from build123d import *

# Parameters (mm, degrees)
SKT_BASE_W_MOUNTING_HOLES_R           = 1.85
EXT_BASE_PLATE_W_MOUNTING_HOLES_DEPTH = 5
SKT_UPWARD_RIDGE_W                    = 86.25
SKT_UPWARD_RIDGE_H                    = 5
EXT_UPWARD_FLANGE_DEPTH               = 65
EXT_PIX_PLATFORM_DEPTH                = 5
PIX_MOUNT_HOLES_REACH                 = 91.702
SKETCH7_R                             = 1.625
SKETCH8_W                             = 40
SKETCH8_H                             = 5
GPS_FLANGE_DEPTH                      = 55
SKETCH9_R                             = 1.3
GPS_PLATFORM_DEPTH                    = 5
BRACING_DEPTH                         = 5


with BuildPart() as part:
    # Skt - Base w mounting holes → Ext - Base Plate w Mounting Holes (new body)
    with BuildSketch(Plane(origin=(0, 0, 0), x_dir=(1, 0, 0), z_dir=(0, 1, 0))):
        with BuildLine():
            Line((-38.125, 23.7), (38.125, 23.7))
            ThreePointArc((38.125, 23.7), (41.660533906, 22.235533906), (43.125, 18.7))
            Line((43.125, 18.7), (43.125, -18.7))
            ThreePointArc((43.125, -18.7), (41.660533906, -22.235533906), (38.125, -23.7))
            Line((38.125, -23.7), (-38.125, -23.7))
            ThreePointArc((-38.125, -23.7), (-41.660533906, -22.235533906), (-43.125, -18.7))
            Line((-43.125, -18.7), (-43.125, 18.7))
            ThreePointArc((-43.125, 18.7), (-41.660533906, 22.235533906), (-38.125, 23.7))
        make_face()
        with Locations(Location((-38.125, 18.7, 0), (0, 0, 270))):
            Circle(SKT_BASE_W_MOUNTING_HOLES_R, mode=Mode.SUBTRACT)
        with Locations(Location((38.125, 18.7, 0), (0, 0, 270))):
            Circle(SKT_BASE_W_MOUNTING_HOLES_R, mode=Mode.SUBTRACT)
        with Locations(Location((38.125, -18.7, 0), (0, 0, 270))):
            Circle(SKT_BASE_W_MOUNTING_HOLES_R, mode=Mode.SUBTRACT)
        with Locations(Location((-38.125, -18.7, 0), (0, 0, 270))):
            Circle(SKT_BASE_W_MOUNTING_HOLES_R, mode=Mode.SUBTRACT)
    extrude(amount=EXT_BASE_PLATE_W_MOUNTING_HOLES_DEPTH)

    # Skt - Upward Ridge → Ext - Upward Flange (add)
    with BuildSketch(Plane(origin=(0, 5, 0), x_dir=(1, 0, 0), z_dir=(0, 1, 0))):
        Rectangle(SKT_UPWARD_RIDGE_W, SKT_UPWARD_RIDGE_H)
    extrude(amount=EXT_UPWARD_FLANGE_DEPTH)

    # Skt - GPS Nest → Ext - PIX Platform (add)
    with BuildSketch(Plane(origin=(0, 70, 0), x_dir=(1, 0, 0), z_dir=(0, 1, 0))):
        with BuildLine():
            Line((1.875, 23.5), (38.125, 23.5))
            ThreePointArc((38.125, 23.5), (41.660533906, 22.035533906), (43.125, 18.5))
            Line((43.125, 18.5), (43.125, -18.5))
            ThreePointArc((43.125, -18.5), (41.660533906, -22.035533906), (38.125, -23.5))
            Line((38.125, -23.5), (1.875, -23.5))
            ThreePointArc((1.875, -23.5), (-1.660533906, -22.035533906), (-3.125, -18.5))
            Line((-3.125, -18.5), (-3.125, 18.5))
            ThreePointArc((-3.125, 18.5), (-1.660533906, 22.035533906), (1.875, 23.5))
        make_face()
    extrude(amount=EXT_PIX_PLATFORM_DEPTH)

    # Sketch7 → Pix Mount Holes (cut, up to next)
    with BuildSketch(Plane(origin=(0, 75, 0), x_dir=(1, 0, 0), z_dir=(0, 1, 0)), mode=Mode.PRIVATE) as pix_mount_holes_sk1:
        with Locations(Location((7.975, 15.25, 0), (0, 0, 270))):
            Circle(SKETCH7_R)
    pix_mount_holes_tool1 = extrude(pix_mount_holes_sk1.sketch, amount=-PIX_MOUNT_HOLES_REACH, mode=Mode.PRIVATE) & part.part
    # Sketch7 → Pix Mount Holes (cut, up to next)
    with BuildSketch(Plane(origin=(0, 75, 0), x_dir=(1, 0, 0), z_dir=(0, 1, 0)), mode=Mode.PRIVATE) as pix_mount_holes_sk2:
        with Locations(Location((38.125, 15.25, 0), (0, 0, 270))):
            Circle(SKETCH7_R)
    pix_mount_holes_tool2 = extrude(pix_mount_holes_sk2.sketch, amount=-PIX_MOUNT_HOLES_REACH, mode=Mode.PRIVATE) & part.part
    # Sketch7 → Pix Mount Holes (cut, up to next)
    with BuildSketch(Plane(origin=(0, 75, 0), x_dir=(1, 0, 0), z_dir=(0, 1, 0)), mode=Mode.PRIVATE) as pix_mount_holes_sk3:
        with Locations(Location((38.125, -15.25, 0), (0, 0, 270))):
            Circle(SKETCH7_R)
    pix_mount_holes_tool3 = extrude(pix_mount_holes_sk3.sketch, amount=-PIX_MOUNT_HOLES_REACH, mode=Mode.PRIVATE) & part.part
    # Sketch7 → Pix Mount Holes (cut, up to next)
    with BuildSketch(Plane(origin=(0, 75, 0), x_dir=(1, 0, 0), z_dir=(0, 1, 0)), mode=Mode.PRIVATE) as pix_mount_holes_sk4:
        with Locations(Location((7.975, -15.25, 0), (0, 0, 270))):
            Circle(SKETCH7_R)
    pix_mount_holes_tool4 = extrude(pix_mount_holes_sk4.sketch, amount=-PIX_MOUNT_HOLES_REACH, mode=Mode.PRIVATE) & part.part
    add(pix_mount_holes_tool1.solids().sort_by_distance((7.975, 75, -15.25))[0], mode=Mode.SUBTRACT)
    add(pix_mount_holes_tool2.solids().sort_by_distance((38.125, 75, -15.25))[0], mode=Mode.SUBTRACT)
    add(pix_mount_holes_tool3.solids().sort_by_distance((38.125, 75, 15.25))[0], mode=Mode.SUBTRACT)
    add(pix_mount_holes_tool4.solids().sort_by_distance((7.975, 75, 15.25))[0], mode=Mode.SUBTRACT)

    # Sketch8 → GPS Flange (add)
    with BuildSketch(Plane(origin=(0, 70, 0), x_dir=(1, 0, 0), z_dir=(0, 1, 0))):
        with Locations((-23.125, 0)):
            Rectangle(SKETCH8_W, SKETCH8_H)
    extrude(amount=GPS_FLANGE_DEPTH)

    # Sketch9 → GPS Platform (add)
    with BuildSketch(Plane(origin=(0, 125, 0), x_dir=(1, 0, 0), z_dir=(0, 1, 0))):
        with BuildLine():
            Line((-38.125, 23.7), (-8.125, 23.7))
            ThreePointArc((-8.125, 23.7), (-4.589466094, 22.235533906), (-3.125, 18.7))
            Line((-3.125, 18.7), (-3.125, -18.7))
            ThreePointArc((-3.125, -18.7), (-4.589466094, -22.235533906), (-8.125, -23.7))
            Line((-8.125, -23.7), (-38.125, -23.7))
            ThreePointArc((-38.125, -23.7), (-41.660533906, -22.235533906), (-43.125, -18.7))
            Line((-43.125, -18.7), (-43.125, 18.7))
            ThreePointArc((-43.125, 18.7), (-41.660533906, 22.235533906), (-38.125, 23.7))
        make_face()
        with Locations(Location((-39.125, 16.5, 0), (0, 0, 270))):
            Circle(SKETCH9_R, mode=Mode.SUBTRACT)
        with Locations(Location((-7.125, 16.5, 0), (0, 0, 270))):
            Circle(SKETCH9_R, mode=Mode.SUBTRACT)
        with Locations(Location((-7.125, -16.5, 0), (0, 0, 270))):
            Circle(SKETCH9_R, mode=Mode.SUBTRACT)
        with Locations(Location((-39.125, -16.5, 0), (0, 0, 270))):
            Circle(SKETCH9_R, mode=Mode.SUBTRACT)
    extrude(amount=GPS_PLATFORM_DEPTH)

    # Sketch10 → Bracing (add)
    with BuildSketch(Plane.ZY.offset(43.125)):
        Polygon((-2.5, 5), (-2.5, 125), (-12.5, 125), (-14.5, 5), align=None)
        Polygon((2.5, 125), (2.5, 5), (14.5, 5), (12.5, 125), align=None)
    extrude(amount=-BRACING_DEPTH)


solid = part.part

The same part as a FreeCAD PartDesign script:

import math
import FreeCAD as App
import Part
import Sketcher
Q = App.Units.Quantity

doc = App.newDocument("Part")
body = doc.addObject("PartDesign::Body", "Body")

sketch1 = body.newObject("Sketcher::SketchObject", "Sketch")
sketch1.AttachmentSupport = (doc.getObject("XZ_Plane"), [""])
sketch1.MapMode = "FlatFace"
sketch1.addGeometry(Part.LineSegment(App.Vector(38.1, -23.7, 0), App.Vector(-38.1, -23.7, 0)), False)
sketch1.addGeometry(Part.ArcOfCircle(Part.Circle(App.Vector(-38.1, -18.7, 0), App.Vector(0, 0, 1), 5), math.radians(180), math.radians(270)), False)
sketch1.addGeometry(Part.LineSegment(App.Vector(-43.1, -18.7, 0), App.Vector(-43.1, 18.7, 0)), False)
sketch1.addGeometry(Part.ArcOfCircle(Part.Circle(App.Vector(-38.1, 18.7, 0), App.Vector(0, 0, 1), 5), math.radians(90), math.radians(180)), False)
sketch1.addGeometry(Part.LineSegment(App.Vector(-38.1, 23.7, 0), App.Vector(38.1, 23.7, 0)), False)
sketch1.addGeometry(Part.ArcOfCircle(Part.Circle(App.Vector(38.1, 18.7, 0), App.Vector(0, 0, 1), 5), math.radians(0), math.radians(90)), False)
sketch1.addGeometry(Part.LineSegment(App.Vector(43.1, 18.7, 0), App.Vector(43.1, -18.7, 0)), False)
sketch1.addGeometry(Part.ArcOfCircle(Part.Circle(App.Vector(38.1, -18.7, 0), App.Vector(0, 0, 1), 5), math.radians(-90), math.radians(0)), False)
sketch1.addGeometry(Part.Circle(App.Vector(38.1, 18.7, 0), App.Vector(0, 0, 1), 1.9), False)
sketch1.addGeometry(Part.Circle(App.Vector(-38.1, 18.7, 0), App.Vector(0, 0, 1), 1.9), False)
sketch1.addGeometry(Part.Circle(App.Vector(38.1, -18.7, 0), App.Vector(0, 0, 1), 1.9), False)
sketch1.addGeometry(Part.Circle(App.Vector(-38.1, -18.7, 0), App.Vector(0, 0, 1), 1.9), False)
sketch1.addConstraint(Sketcher.Constraint("Tangent", 0, 2, 1, 2))
sketch1.addConstraint(Sketcher.Constraint("Tangent", 1, 1, 2, 1))
sketch1.addConstraint(Sketcher.Constraint("Tangent", 2, 2, 3, 2))
sketch1.addConstraint(Sketcher.Constraint("Tangent", 3, 1, 4, 1))
sketch1.addConstraint(Sketcher.Constraint("Tangent", 4, 2, 5, 2))
sketch1.addConstraint(Sketcher.Constraint("Tangent", 5, 1, 6, 1))
sketch1.addConstraint(Sketcher.Constraint("Tangent", 6, 2, 7, 2))
sketch1.addConstraint(Sketcher.Constraint("Tangent", 7, 1, 0, 1))
sketch1.addConstraint(Sketcher.Constraint("Horizontal", 0))
sketch1.addConstraint(Sketcher.Constraint("Vertical", 2))
sketch1.addConstraint(Sketcher.Constraint("Horizontal", 4))
sketch1.addConstraint(Sketcher.Constraint("Vertical", 6))
sketch1.addConstraint(Sketcher.Constraint("Coincident", 8, 3, 5, 3))
sketch1.addConstraint(Sketcher.Constraint("Coincident", 9, 3, 3, 3))
sketch1.addConstraint(Sketcher.Constraint("Coincident", 10, 3, 7, 3))
sketch1.addConstraint(Sketcher.Constraint("Coincident", 11, 3, 1, 3))
sketch1.addConstraint(Sketcher.Constraint("Equal", 1, 3))
sketch1.addConstraint(Sketcher.Constraint("Equal", 3, 5))
sketch1.addConstraint(Sketcher.Constraint("Equal", 5, 7))
sketch1.addConstraint(Sketcher.Constraint("Equal", 8, 9))
sketch1.addConstraint(Sketcher.Constraint("Equal", 9, 10))
sketch1.addConstraint(Sketcher.Constraint("Equal", 10, 11))
sketch1.addConstraint(Sketcher.Constraint("Symmetric", 1, 3, 5, 3, -1, 1))
sketch1.addConstraint(Sketcher.Constraint("Radius", 1, Q("5 mm")))
sketch1.addConstraint(Sketcher.Constraint("Diameter", 8, Q("3.7 mm")))
sketch1.addConstraint(Sketcher.Constraint("DistanceY", 2, 1, 2, 2, Q("37.4 mm")))
sketch1.addConstraint(Sketcher.Constraint("DistanceX", 0, 2, 0, 1, Q("76.25 mm")))
pad1 = body.newObject("PartDesign::Pad", "Pad")
pad1.Profile = sketch1
pad1.Length = 5
pad1.Reversed = True

sketch2 = body.newObject("Sketcher::SketchObject", "Sketch001")
sketch2.AttachmentSupport = (doc.getObject("XZ_Plane"), [""])
sketch2.MapMode = "FlatFace"
sketch2.AttachmentOffset = App.Placement(App.Vector(0, 0, -5), App.Rotation())
sketch2.addGeometry(Part.LineSegment(App.Vector(-43, -2, 0), App.Vector(-43, 2, 0)), False)
sketch2.addGeometry(Part.LineSegment(App.Vector(-43, 2, 0), App.Vector(43, 2, 0)), False)
sketch2.addGeometry(Part.LineSegment(App.Vector(43, 2, 0), App.Vector(43, -2, 0)), False)
sketch2.addGeometry(Part.LineSegment(App.Vector(43, -2, 0), App.Vector(-43, -2, 0)), False)
sketch2.addConstraint(Sketcher.Constraint("Coincident", 0, 2, 1, 1))
sketch2.addConstraint(Sketcher.Constraint("Coincident", 1, 2, 2, 1))
sketch2.addConstraint(Sketcher.Constraint("Coincident", 2, 2, 3, 1))
sketch2.addConstraint(Sketcher.Constraint("Coincident", 3, 2, 0, 1))
sketch2.addConstraint(Sketcher.Constraint("Vertical", 0))
sketch2.addConstraint(Sketcher.Constraint("Horizontal", 1))
sketch2.addConstraint(Sketcher.Constraint("Vertical", 2))
sketch2.addConstraint(Sketcher.Constraint("Horizontal", 3))
sketch2.addConstraint(Sketcher.Constraint("Symmetric", 0, 2, 2, 2, -1, 1))
sketch2.addConstraint(Sketcher.Constraint("DistanceY", 0, 1, 0, 2, Q("5 mm")))
sketch2.addConstraint(Sketcher.Constraint("DistanceX", 1, 1, 1, 2, Q("86.25 mm")))
pad2 = body.newObject("PartDesign::Pad", "Pad001")
pad2.Profile = sketch2
pad2.Length = 65
pad2.Reversed = True

sketch3 = body.newObject("Sketcher::SketchObject", "Sketch002")
sketch3.AttachmentSupport = (doc.getObject("XZ_Plane"), [""])
sketch3.MapMode = "FlatFace"
sketch3.AttachmentOffset = App.Placement(App.Vector(0, 0, -70), App.Rotation())
sketch3.addGeometry(Part.LineSegment(App.Vector(38, -24, 0), App.Vector(2, -24, 0)), False)
sketch3.addGeometry(Part.ArcOfCircle(Part.Circle(App.Vector(2, -18, 0), App.Vector(0, 0, 1), 5), math.radians(180), math.radians(270)), False)
sketch3.addGeometry(Part.LineSegment(App.Vector(-3, -18, 0), App.Vector(-3, 18, 0)), False)
sketch3.addGeometry(Part.ArcOfCircle(Part.Circle(App.Vector(2, 18, 0), App.Vector(0, 0, 1), 5), math.radians(90), math.radians(180)), False)
sketch3.addGeometry(Part.LineSegment(App.Vector(2, 24, 0), App.Vector(38, 24, 0)), False)
sketch3.addGeometry(Part.ArcOfCircle(Part.Circle(App.Vector(38, 18, 0), App.Vector(0, 0, 1), 5), math.radians(0), math.radians(90)), False)
sketch3.addGeometry(Part.LineSegment(App.Vector(43, 18, 0), App.Vector(43, -18, 0)), False)
sketch3.addGeometry(Part.ArcOfCircle(Part.Circle(App.Vector(38, -18, 0), App.Vector(0, 0, 1), 5), math.radians(-90), math.radians(0)), False)
sketch3.addConstraint(Sketcher.Constraint("Tangent", 0, 2, 1, 2))
sketch3.addConstraint(Sketcher.Constraint("Tangent", 1, 1, 2, 1))
sketch3.addConstraint(Sketcher.Constraint("Tangent", 2, 2, 3, 2))
sketch3.addConstraint(Sketcher.Constraint("Tangent", 3, 1, 4, 1))
sketch3.addConstraint(Sketcher.Constraint("Tangent", 4, 2, 5, 2))
sketch3.addConstraint(Sketcher.Constraint("Tangent", 5, 1, 6, 1))
sketch3.addConstraint(Sketcher.Constraint("Tangent", 6, 2, 7, 2))
sketch3.addConstraint(Sketcher.Constraint("Tangent", 7, 1, 0, 1))
sketch3.addConstraint(Sketcher.Constraint("Horizontal", 0))
sketch3.addConstraint(Sketcher.Constraint("Vertical", 2))
sketch3.addConstraint(Sketcher.Constraint("Horizontal", 4))
sketch3.addConstraint(Sketcher.Constraint("Vertical", 6))
sketch3.addConstraint(Sketcher.Constraint("Equal", 1, 3))
sketch3.addConstraint(Sketcher.Constraint("Equal", 3, 5))
sketch3.addConstraint(Sketcher.Constraint("Equal", 5, 7))
sketch3.addConstraint(Sketcher.Constraint("Radius", 1, Q("5 mm")))
sketch3.addConstraint(Sketcher.Constraint("DistanceY", 2, 1, 2, 2, Q("37 mm")))
sketch3.addConstraint(Sketcher.Constraint("DistanceX", 0, 2, 0, 1, Q("36.25 mm")))
sketch3.addConstraint(Sketcher.Constraint("DistanceY", 1, 3, -1, 1, Q("18.5 mm")))
sketch3.addConstraint(Sketcher.Constraint("DistanceX", -1, 1, 1, 3, Q("1.875 mm")))
pad3 = body.newObject("PartDesign::Pad", "Pad002")
pad3.Profile = sketch3
pad3.Length = 5
pad3.Reversed = True

sketch4 = body.newObject("Sketcher::SketchObject", "Sketch003")
sketch4.AttachmentSupport = (doc.getObject("XZ_Plane"), [""])
sketch4.MapMode = "FlatFace"
sketch4.AttachmentOffset = App.Placement(App.Vector(0, 0, -75), App.Rotation())
sketch4.addGeometry(Part.Circle(App.Vector(8, -15.2, 0), App.Vector(0, 0, 1), 1.6), False)
sketch4.addConstraint(Sketcher.Constraint("Diameter", 0, Q("3.25 mm")))
sketch4.addConstraint(Sketcher.Constraint("DistanceY", 0, 3, -1, 1, Q("15.25 mm")))
sketch4.addConstraint(Sketcher.Constraint("DistanceX", -1, 1, 0, 3, Q("7.975 mm")))
pocket1 = body.newObject("PartDesign::Pocket", "Pocket")
pocket1.Profile = sketch4
pocket1.Type = "UpToFirst"
pocket1.Reversed = True

sketch5 = body.newObject("Sketcher::SketchObject", "Sketch004")
sketch5.AttachmentSupport = (doc.getObject("XZ_Plane"), [""])
sketch5.MapMode = "FlatFace"
sketch5.AttachmentOffset = App.Placement(App.Vector(0, 0, -75), App.Rotation())
sketch5.addGeometry(Part.Circle(App.Vector(38.1, -15.2, 0), App.Vector(0, 0, 1), 1.6), False)
sketch5.addConstraint(Sketcher.Constraint("Diameter", 0, Q("3.25 mm")))
sketch5.addConstraint(Sketcher.Constraint("DistanceY", 0, 3, -1, 1, Q("15.25 mm")))
sketch5.addConstraint(Sketcher.Constraint("DistanceX", -1, 1, 0, 3, Q("38.125 mm")))
pocket2 = body.newObject("PartDesign::Pocket", "Pocket001")
pocket2.Profile = sketch5
pocket2.Type = "UpToFirst"
pocket2.Reversed = True

sketch6 = body.newObject("Sketcher::SketchObject", "Sketch005")
sketch6.AttachmentSupport = (doc.getObject("XZ_Plane"), [""])
sketch6.MapMode = "FlatFace"
sketch6.AttachmentOffset = App.Placement(App.Vector(0, 0, -75), App.Rotation())
sketch6.addGeometry(Part.Circle(App.Vector(38.1, 15.2, 0), App.Vector(0, 0, 1), 1.6), False)
sketch6.addConstraint(Sketcher.Constraint("Diameter", 0, Q("3.25 mm")))
sketch6.addConstraint(Sketcher.Constraint("DistanceY", -1, 1, 0, 3, Q("15.25 mm")))
sketch6.addConstraint(Sketcher.Constraint("DistanceX", -1, 1, 0, 3, Q("38.125 mm")))
pocket3 = body.newObject("PartDesign::Pocket", "Pocket002")
pocket3.Profile = sketch6
pocket3.Type = "UpToFirst"
pocket3.Reversed = True

sketch7 = body.newObject("Sketcher::SketchObject", "Sketch006")
sketch7.AttachmentSupport = (doc.getObject("XZ_Plane"), [""])
sketch7.MapMode = "FlatFace"
sketch7.AttachmentOffset = App.Placement(App.Vector(0, 0, -75), App.Rotation())
sketch7.addGeometry(Part.Circle(App.Vector(8, 15.2, 0), App.Vector(0, 0, 1), 1.6), False)
sketch7.addConstraint(Sketcher.Constraint("Diameter", 0, Q("3.25 mm")))
sketch7.addConstraint(Sketcher.Constraint("DistanceY", -1, 1, 0, 3, Q("15.25 mm")))
sketch7.addConstraint(Sketcher.Constraint("DistanceX", -1, 1, 0, 3, Q("7.975 mm")))
pocket4 = body.newObject("PartDesign::Pocket", "Pocket003")
pocket4.Profile = sketch7
pocket4.Type = "UpToFirst"
pocket4.Reversed = True

sketch8 = body.newObject("Sketcher::SketchObject", "Sketch007")
sketch8.AttachmentSupport = (doc.getObject("XZ_Plane"), [""])
sketch8.MapMode = "FlatFace"
sketch8.AttachmentOffset = App.Placement(App.Vector(0, 0, -70), App.Rotation())
sketch8.addGeometry(Part.LineSegment(App.Vector(-43, -2, 0), App.Vector(-43, 2, 0)), False)
sketch8.addGeometry(Part.LineSegment(App.Vector(-43, 2, 0), App.Vector(-3, 2, 0)), False)
sketch8.addGeometry(Part.LineSegment(App.Vector(-3, 2, 0), App.Vector(-3, -2, 0)), False)
sketch8.addGeometry(Part.LineSegment(App.Vector(-3, -2, 0), App.Vector(-43, -2, 0)), False)
sketch8.addConstraint(Sketcher.Constraint("Coincident", 0, 2, 1, 1))
sketch8.addConstraint(Sketcher.Constraint("Coincident", 1, 2, 2, 1))
sketch8.addConstraint(Sketcher.Constraint("Coincident", 2, 2, 3, 1))
sketch8.addConstraint(Sketcher.Constraint("Coincident", 3, 2, 0, 1))
sketch8.addConstraint(Sketcher.Constraint("Vertical", 0))
sketch8.addConstraint(Sketcher.Constraint("Horizontal", 1))
sketch8.addConstraint(Sketcher.Constraint("Vertical", 2))
sketch8.addConstraint(Sketcher.Constraint("Horizontal", 3))
sketch8.addConstraint(Sketcher.Constraint("DistanceX", 1, 1, 1, 2, Q("40 mm")))
sketch8.addConstraint(Sketcher.Constraint("DistanceY", 0, 1, 0, 2, Q("5 mm")))
sketch8.addConstraint(Sketcher.Constraint("DistanceY", -1, 1, 0, 2, Q("2.5 mm")))
sketch8.addConstraint(Sketcher.Constraint("DistanceX", 0, 2, -1, 1, Q("43.125 mm")))
pad4 = body.newObject("PartDesign::Pad", "Pad003")
pad4.Profile = sketch8
pad4.Length = 55
pad4.Reversed = True

sketch9 = body.newObject("Sketcher::SketchObject", "Sketch008")
sketch9.AttachmentSupport = (doc.getObject("XZ_Plane"), [""])
sketch9.MapMode = "FlatFace"
sketch9.AttachmentOffset = App.Placement(App.Vector(0, 0, -125), App.Rotation())
sketch9.addGeometry(Part.LineSegment(App.Vector(-8.1, -23.7, 0), App.Vector(-38.1, -23.7, 0)), False)
sketch9.addGeometry(Part.ArcOfCircle(Part.Circle(App.Vector(-38.1, -18.7, 0), App.Vector(0, 0, 1), 5), math.radians(180), math.radians(270)), False)
sketch9.addGeometry(Part.LineSegment(App.Vector(-43.1, -18.7, 0), App.Vector(-43.1, 18.7, 0)), False)
sketch9.addGeometry(Part.ArcOfCircle(Part.Circle(App.Vector(-38.1, 18.7, 0), App.Vector(0, 0, 1), 5), math.radians(90), math.radians(180)), False)
sketch9.addGeometry(Part.LineSegment(App.Vector(-38.1, 23.7, 0), App.Vector(-8.1, 23.7, 0)), False)
sketch9.addGeometry(Part.ArcOfCircle(Part.Circle(App.Vector(-8.1, 18.7, 0), App.Vector(0, 0, 1), 5), math.radians(0), math.radians(90)), False)
sketch9.addGeometry(Part.LineSegment(App.Vector(-3.1, 18.7, 0), App.Vector(-3.1, -18.7, 0)), False)
sketch9.addGeometry(Part.ArcOfCircle(Part.Circle(App.Vector(-8.1, -18.7, 0), App.Vector(0, 0, 1), 5), math.radians(-90), math.radians(0)), False)
sketch9.addGeometry(Part.Circle(App.Vector(-7.1, 16.5, 0), App.Vector(0, 0, 1), 1.3), False)
sketch9.addGeometry(Part.Circle(App.Vector(-39.1, 16.5, 0), App.Vector(0, 0, 1), 1.3), False)
sketch9.addGeometry(Part.Circle(App.Vector(-7.1, -16.5, 0), App.Vector(0, 0, 1), 1.3), False)
sketch9.addGeometry(Part.Circle(App.Vector(-39.1, -16.5, 0), App.Vector(0, 0, 1), 1.3), False)
sketch9.addConstraint(Sketcher.Constraint("Tangent", 0, 2, 1, 2))
sketch9.addConstraint(Sketcher.Constraint("Tangent", 1, 1, 2, 1))
sketch9.addConstraint(Sketcher.Constraint("Tangent", 2, 2, 3, 2))
sketch9.addConstraint(Sketcher.Constraint("Tangent", 3, 1, 4, 1))
sketch9.addConstraint(Sketcher.Constraint("Tangent", 4, 2, 5, 2))
sketch9.addConstraint(Sketcher.Constraint("Tangent", 5, 1, 6, 1))
sketch9.addConstraint(Sketcher.Constraint("Tangent", 6, 2, 7, 2))
sketch9.addConstraint(Sketcher.Constraint("Tangent", 7, 1, 0, 1))
sketch9.addConstraint(Sketcher.Constraint("Horizontal", 0))
sketch9.addConstraint(Sketcher.Constraint("Vertical", 2))
sketch9.addConstraint(Sketcher.Constraint("Horizontal", 4))
sketch9.addConstraint(Sketcher.Constraint("Vertical", 6))
sketch9.addConstraint(Sketcher.Constraint("Equal", 1, 3))
sketch9.addConstraint(Sketcher.Constraint("Equal", 3, 5))
sketch9.addConstraint(Sketcher.Constraint("Equal", 5, 7))
sketch9.addConstraint(Sketcher.Constraint("Equal", 8, 9))
sketch9.addConstraint(Sketcher.Constraint("Equal", 9, 10))
sketch9.addConstraint(Sketcher.Constraint("Equal", 10, 11))
sketch9.addConstraint(Sketcher.Constraint("Symmetric", 8, 3, 10, 3, -1))
sketch9.addConstraint(Sketcher.Constraint("Symmetric", 9, 3, 11, 3, -1))
sketch9.addConstraint(Sketcher.Constraint("Horizontal", 8, 3, 9, 3))
sketch9.addConstraint(Sketcher.Constraint("Radius", 1, Q("5 mm")))
sketch9.addConstraint(Sketcher.Constraint("Diameter", 8, Q("2.6 mm")))
sketch9.addConstraint(Sketcher.Constraint("DistanceX", 0, 2, 0, 1, Q("30 mm")))
sketch9.addConstraint(Sketcher.Constraint("DistanceY", 2, 1, 2, 2, Q("37.4 mm")))
sketch9.addConstraint(Sketcher.Constraint("DistanceX", 5, 3, 8, 3, Q("1 mm")))
sketch9.addConstraint(Sketcher.Constraint("DistanceX", 9, 3, 3, 3, Q("1 mm")))
sketch9.addConstraint(Sketcher.Constraint("DistanceY", 10, 3, 8, 3, Q("33 mm")))
sketch9.addConstraint(Sketcher.Constraint("DistanceY", 1, 3, -1, 1, Q("18.7 mm")))
sketch9.addConstraint(Sketcher.Constraint("DistanceX", 1, 3, -1, 1, Q("38.125 mm")))
pad5 = body.newObject("PartDesign::Pad", "Pad004")
pad5.Profile = sketch9
pad5.Length = 5
pad5.Reversed = True

sketch10 = body.newObject("Sketcher::SketchObject", "Sketch009")
sketch10.AttachmentSupport = (doc.getObject("YZ_Plane"), [""])
sketch10.MapMode = "FlatFace"
sketch10.AttachmentOffset = App.Placement(App.Vector(0, 0, -43.125), App.Rotation())
sketch10.addGeometry(Part.LineSegment(App.Vector(5, -2, 0), App.Vector(125, -2, 0)), False)
sketch10.addGeometry(Part.LineSegment(App.Vector(125, -2, 0), App.Vector(125, -12, 0)), False)
sketch10.addGeometry(Part.LineSegment(App.Vector(125, -12, 0), App.Vector(5, -14, 0)), False)
sketch10.addGeometry(Part.LineSegment(App.Vector(5, -14, 0), App.Vector(5, -2, 0)), False)
sketch10.addGeometry(Part.LineSegment(App.Vector(125, 2, 0), App.Vector(5, 2, 0)), False)
sketch10.addGeometry(Part.LineSegment(App.Vector(5, 2, 0), App.Vector(5, 14, 0)), False)
sketch10.addGeometry(Part.LineSegment(App.Vector(5, 14, 0), App.Vector(125, 12, 0)), False)
sketch10.addGeometry(Part.LineSegment(App.Vector(125, 12, 0), App.Vector(125, 2, 0)), False)
sketch10.addConstraint(Sketcher.Constraint("Coincident", 0, 2, 1, 1))
sketch10.addConstraint(Sketcher.Constraint("Coincident", 1, 2, 2, 1))
sketch10.addConstraint(Sketcher.Constraint("Coincident", 2, 2, 3, 1))
sketch10.addConstraint(Sketcher.Constraint("Coincident", 3, 2, 0, 1))
sketch10.addConstraint(Sketcher.Constraint("Coincident", 4, 2, 5, 1))
sketch10.addConstraint(Sketcher.Constraint("Coincident", 5, 2, 6, 1))
sketch10.addConstraint(Sketcher.Constraint("Coincident", 6, 2, 7, 1))
sketch10.addConstraint(Sketcher.Constraint("Coincident", 7, 2, 4, 1))
sketch10.addConstraint(Sketcher.Constraint("Horizontal", 0))
sketch10.addConstraint(Sketcher.Constraint("Vertical", 1))
sketch10.addConstraint(Sketcher.Constraint("Vertical", 3))
sketch10.addConstraint(Sketcher.Constraint("Horizontal", 4))
sketch10.addConstraint(Sketcher.Constraint("Vertical", 5))
sketch10.addConstraint(Sketcher.Constraint("Vertical", 7))
sketch10.addConstraint(Sketcher.Constraint("Symmetric", 3, 2, 4, 2, -1))
sketch10.addConstraint(Sketcher.Constraint("Symmetric", 1, 2, 6, 2, -1))
sketch10.addConstraint(Sketcher.Constraint("Equal", 3, 5))
sketch10.addConstraint(Sketcher.Constraint("DistanceX", 0, 1, 0, 2, Q("120 mm")))
sketch10.addConstraint(Sketcher.Constraint("DistanceY", 1, 2, 1, 1, Q("10 mm")))
sketch10.addConstraint(Sketcher.Constraint("DistanceY", 3, 1, 3, 2, Q("12 mm")))
sketch10.addConstraint(Sketcher.Constraint("DistanceX", -1, 1, 0, 2, Q("125 mm")))
sketch10.addConstraint(Sketcher.Constraint("DistanceY", 3, 2, 4, 2, Q("5 mm")))
pad6 = body.newObject("PartDesign::Pad", "Pad005")
pad6.Profile = sketch10
pad6.Length = 5

doc.recompute()
